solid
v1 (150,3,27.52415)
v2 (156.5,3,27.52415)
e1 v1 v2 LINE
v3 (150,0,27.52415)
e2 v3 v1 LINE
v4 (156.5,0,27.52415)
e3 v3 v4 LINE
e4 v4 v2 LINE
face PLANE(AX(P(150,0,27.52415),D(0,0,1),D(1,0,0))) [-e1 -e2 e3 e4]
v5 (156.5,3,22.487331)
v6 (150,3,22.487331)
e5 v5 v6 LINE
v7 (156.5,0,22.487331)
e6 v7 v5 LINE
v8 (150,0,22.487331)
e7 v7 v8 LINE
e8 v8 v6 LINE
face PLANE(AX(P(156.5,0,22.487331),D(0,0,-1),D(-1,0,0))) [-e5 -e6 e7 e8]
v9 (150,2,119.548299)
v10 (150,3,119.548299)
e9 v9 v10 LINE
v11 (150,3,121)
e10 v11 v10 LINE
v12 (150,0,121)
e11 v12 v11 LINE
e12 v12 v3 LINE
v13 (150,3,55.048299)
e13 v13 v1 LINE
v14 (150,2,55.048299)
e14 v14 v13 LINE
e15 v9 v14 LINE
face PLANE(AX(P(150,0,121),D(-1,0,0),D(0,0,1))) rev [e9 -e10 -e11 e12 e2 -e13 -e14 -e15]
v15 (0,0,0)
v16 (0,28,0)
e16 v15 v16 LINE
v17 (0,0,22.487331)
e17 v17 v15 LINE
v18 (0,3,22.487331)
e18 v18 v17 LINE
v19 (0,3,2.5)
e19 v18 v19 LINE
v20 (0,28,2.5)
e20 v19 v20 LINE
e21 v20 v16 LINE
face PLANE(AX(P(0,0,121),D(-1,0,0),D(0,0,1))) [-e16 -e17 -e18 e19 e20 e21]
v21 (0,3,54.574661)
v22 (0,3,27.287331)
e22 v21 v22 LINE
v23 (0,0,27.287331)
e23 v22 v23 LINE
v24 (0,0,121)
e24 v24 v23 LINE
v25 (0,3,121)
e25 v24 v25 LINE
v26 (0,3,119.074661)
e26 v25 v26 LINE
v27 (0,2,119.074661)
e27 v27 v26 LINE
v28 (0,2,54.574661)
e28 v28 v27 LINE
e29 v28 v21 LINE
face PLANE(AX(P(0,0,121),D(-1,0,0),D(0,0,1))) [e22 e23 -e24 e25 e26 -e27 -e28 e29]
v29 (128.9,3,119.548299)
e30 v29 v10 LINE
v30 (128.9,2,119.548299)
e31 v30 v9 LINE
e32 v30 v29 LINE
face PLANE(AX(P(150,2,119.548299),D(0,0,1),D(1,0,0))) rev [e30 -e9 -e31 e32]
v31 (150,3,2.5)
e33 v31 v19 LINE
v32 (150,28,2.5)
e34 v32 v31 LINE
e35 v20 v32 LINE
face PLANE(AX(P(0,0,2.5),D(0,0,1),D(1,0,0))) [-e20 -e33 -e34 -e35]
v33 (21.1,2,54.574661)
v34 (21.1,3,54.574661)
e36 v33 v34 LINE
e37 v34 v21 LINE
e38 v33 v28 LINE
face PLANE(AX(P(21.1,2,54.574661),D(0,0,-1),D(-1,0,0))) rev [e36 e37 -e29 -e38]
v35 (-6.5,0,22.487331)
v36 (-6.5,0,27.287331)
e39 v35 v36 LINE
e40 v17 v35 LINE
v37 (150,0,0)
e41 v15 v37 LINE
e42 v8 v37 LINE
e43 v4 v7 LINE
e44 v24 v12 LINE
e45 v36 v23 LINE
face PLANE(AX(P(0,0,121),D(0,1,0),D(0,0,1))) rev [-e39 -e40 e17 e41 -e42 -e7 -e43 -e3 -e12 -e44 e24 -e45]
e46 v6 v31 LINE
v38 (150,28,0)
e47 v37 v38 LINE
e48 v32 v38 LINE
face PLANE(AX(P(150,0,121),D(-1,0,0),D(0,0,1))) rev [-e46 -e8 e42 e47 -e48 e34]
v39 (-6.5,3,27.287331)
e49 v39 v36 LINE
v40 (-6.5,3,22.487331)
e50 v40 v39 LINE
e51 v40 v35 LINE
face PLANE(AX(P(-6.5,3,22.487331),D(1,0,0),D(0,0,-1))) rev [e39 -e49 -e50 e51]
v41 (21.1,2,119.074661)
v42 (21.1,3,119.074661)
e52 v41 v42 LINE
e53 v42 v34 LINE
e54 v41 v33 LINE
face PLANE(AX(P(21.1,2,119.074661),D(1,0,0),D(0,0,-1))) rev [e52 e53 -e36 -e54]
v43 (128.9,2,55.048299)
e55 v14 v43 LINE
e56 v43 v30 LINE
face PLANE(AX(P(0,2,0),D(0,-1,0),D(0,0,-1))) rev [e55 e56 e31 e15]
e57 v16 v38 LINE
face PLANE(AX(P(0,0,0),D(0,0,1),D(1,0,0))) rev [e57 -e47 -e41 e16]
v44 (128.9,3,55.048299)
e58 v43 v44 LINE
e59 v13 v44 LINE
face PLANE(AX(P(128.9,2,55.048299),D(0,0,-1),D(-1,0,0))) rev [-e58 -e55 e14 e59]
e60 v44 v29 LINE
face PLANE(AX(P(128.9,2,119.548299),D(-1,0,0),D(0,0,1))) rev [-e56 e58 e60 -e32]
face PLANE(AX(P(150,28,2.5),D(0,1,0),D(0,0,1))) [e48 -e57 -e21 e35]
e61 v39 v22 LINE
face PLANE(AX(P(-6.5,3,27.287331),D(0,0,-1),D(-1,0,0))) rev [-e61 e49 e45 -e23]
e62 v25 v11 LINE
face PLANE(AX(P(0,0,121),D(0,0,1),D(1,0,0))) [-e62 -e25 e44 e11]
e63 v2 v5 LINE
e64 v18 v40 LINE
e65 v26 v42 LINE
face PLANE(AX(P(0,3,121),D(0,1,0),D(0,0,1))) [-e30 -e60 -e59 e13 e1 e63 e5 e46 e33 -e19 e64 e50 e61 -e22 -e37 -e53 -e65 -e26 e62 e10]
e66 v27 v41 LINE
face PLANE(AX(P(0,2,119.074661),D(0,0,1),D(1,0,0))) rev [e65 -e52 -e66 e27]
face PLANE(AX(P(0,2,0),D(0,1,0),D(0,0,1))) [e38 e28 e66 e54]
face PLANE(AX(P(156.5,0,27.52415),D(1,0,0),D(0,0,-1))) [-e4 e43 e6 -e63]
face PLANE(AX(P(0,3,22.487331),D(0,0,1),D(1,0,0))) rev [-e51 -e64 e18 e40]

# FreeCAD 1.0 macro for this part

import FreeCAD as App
import Part
import Sketcher

V = App.Vector
Q = App.Units.Quantity


def add_polygon(sketch, points):
    """Adds a closed chain of lines whose ends are joined by coincident constraints."""
    first, n = sketch.GeometryCount, len(points)
    for a, b in zip(points, points[1:] + points[:1]):
        sketch.addGeometry(Part.LineSegment(App.Vector(*a, 0), App.Vector(*b, 0)), False)
    for i in range(n):
        sketch.addConstraint(Sketcher.Constraint("Coincident", first + i, 2, first + (i + 1) % n, 1))

doc = App.newDocument("Part")
params = doc.addObject("Spreadsheet::Sheet", "Params")
for row, (alias, value) in enumerate([
    ("sketch1_width", "150 mm"),
    ("sketch1_height", "3 mm"),
    ("pad1_length", "121 mm"),
    ("sketch2_width", "21.1 mm"),
    ("sketch2_height", "64.5 mm"),
    ("pocket1_length", "1 mm"),
    ("sketch3_width", "21.1 mm"),
    ("sketch3_height", "64.5 mm"),
    ("pocket2_length", "1 mm"),
    ("sketch4_width", "6.5 mm"),
    ("sketch4_height", "4.8 mm"),
    ("pad2_length", "3 mm"),
    ("sketch5_width", "6.5 mm"),
    ("pad3_length", "3 mm"),
    ("sketch6_width", "150 mm"),
    ("sketch6_height", "25 mm"),
    ("pad4_length", "2.5 mm"),
], start=1):
    params.set(f"A{row}", alias)
    params.set(f"B{row}", "=" + value)
    params.setAlias(f"B{row}", alias)

body = doc.addObject("PartDesign::Body", "Body")

# Sketch on XY plane
sketch1 = body.newObject("Sketcher::SketchObject", "Sketch")
sketch1.AttachmentSupport = (doc.getObject("XY_Plane"), [""])
sketch1.MapMode = "FlatFace"
add_polygon(sketch1, [(0, 3), (0, 0), (150, 0), (150, 3)])  # lines 0-3
sketch1.addConstraint(Sketcher.Constraint("Vertical", 0))
sketch1.addConstraint(Sketcher.Constraint("Horizontal", 1))
sketch1.addConstraint(Sketcher.Constraint("Vertical", 2))
sketch1.addConstraint(Sketcher.Constraint("Horizontal", 3))
sketch1.addConstraint(Sketcher.Constraint("Coincident", 0, 2, -1, 1))
sketch1.addConstraint(Sketcher.Constraint("DistanceX", 1, 1, 1, 2, Q("150 mm")))
sketch1.addConstraint(Sketcher.Constraint("DistanceY", 0, 2, 0, 1, Q("3 mm")))
sketch1.setExpression("Constraints[9]", "Params.sketch1_width")
sketch1.setExpression("Constraints[10]", "Params.sketch1_height")
pad1 = body.newObject("PartDesign::Pad", "Pad")
pad1.Profile = sketch1
pad1.setExpression("Length", "Params.pad1_length")

# Sketch on XZ plane
sketch2 = body.newObject("Sketcher::SketchObject", "Sketch001")
sketch2.AttachmentSupport = (doc.getObject("XZ_Plane"), [""])
sketch2.MapMode = "FlatFace"
sketch2.AttachmentOffset = App.Placement(V(0, 0, -3), App.Rotation())
add_polygon(sketch2, [(0, 54.574661), (0, 119.074661), (21.1, 119.074661), (21.1, 54.574661)])  # lines 0-3
sketch2.addConstraint(Sketcher.Constraint("Vertical", 0))
sketch2.addConstraint(Sketcher.Constraint("Horizontal", 1))
sketch2.addConstraint(Sketcher.Constraint("Vertical", 2))
sketch2.addConstraint(Sketcher.Constraint("Horizontal", 3))
sketch2.addConstraint(Sketcher.Constraint("PointOnObject", 0, 2, -2))
sketch2.addConstraint(Sketcher.Constraint("DistanceX", 1, 1, 1, 2, Q("21.1 mm")))
sketch2.addConstraint(Sketcher.Constraint("DistanceY", 0, 1, 0, 2, Q("64.5 mm")))
sketch2.addConstraint(Sketcher.Constraint("DistanceY", -1, 1, 0, 2, Q("119.074661 mm")))
sketch2.setExpression("Constraints[9]", "Params.sketch2_width")
sketch2.setExpression("Constraints[10]", "Params.sketch2_height")
pocket1 = body.newObject("PartDesign::Pocket", "Pocket")
pocket1.Profile = sketch2
pocket1.setExpression("Length", "Params.pocket1_length")
pocket1.Reversed = True

# Sketch on XZ plane
sketch3 = body.newObject("Sketcher::SketchObject", "Sketch002")
sketch3.AttachmentSupport = (doc.getObject("XZ_Plane"), [""])
sketch3.MapMode = "FlatFace"
sketch3.AttachmentOffset = App.Placement(V(0, 0, -3), App.Rotation())
add_polygon(sketch3, [(128.9, 55.048299), (128.9, 119.548299), (150, 119.548299), (150, 55.048299)])  # lines 0-3
sketch3.addConstraint(Sketcher.Constraint("Vertical", 0))
sketch3.addConstraint(Sketcher.Constraint("Horizontal", 1))
sketch3.addConstraint(Sketcher.Constraint("Vertical", 2))
sketch3.addConstraint(Sketcher.Constraint("Horizontal", 3))
sketch3.addConstraint(Sketcher.Constraint("DistanceX", 1, 1, 1, 2, Q("21.1 mm")))
sketch3.addConstraint(Sketcher.Constraint("DistanceY", 0, 1, 0, 2, Q("64.5 mm")))
sketch3.addConstraint(Sketcher.Constraint("DistanceX", -1, 1, 1, 2, Q("150 mm")))
sketch3.addConstraint(Sketcher.Constraint("DistanceY", -1, 1, 0, 2, Q("119.548299 mm")))
sketch3.setExpression("Constraints[8]", "Params.sketch3_width")
sketch3.setExpression("Constraints[9]", "Params.sketch3_height")
pocket2 = body.newObject("PartDesign::Pocket", "Pocket001")
pocket2.Profile = sketch3
pocket2.setExpression("Length", "Params.pocket2_length")
pocket2.Reversed = True

# Sketch on XZ plane
sketch4 = body.newObject("Sketcher::SketchObject", "Sketch003")
sketch4.AttachmentSupport = (doc.getObject("XZ_Plane"), [""])
sketch4.MapMode = "FlatFace"
add_polygon(sketch4, [(-6.5, 22.487331), (-6.5, 27.287331), (0, 27.287331), (0, 22.487331)])  # lines 0-3
sketch4.addConstraint(Sketcher.Constraint("Vertical", 0))
sketch4.addConstraint(Sketcher.Constraint("Horizontal", 1))
sketch4.addConstraint(Sketcher.Constraint("Vertical", 2))
sketch4.addConstraint(Sketcher.Constraint("Horizontal", 3))
sketch4.addConstraint(Sketcher.Constraint("PointOnObject", 1, 2, -2))
sketch4.addConstraint(Sketcher.Constraint("DistanceX", 1, 1, 1, 2, Q("6.5 mm")))
sketch4.addConstraint(Sketcher.Constraint("DistanceY", 0, 1, 0, 2, Q("4.8 mm")))
sketch4.addConstraint(Sketcher.Constraint("DistanceY", -1, 1, 0, 2, Q("27.287331 mm")))
sketch4.setExpression("Constraints[9]", "Params.sketch4_width")
sketch4.setExpression("Constraints[10]", "Params.sketch4_height")
pad2 = body.newObject("PartDesign::Pad", "Pad001")
pad2.Profile = sketch4
pad2.setExpression("Length", "Params.pad2_length")
pad2.Reversed = True

# Sketch on XZ plane
sketch5 = body.newObject("Sketcher::SketchObject", "Sketch004")
sketch5.AttachmentSupport = (doc.getObject("XZ_Plane"), [""])
sketch5.MapMode = "FlatFace"
sketch5.AttachmentOffset = App.Placement(V(0, 0, -3), App.Rotation())
add_polygon(sketch5, [(150, 22.487331), (150, 27.52415), (156.5, 27.52415), (156.5, 22.487331)])  # lines 0-3
sketch5.addConstraint(Sketcher.Constraint("Vertical", 0))
sketch5.addConstraint(Sketcher.Constraint("Horizontal", 1))
sketch5.addConstraint(Sketcher.Constraint("Vertical", 2))
sketch5.addConstraint(Sketcher.Constraint("Horizontal", 3))
sketch5.addConstraint(Sketcher.Constraint("DistanceX", 1, 1, 1, 2, Q("6.5 mm")))
sketch5.addConstraint(Sketcher.Constraint("DistanceX", -1, 1, 0, 2, Q("150 mm")))
sketch5.addConstraint(Sketcher.Constraint("DistanceY", 0, 1, 0, 2, Q("5.036819 mm")))
sketch5.addConstraint(Sketcher.Constraint("DistanceY", -1, 1, 0, 2, Q("27.52415 mm")))
sketch5.setExpression("Constraints[8]", "Params.sketch5_width")
pad3 = body.newObject("PartDesign::Pad", "Pad002")
pad3.Profile = sketch5
pad3.setExpression("Length", "Params.pad3_length")

# Sketch on XY plane
sketch6 = body.newObject("Sketcher::SketchObject", "Sketch005")
sketch6.AttachmentSupport = (doc.getObject("XY_Plane"), [""])
sketch6.MapMode = "FlatFace"
add_polygon(sketch6, [(150, 28), (150, 3), (0, 3), (0, 28)])  # lines 0-3
sketch6.addConstraint(Sketcher.Constraint("Vertical", 0))
sketch6.addConstraint(Sketcher.Constraint("Horizontal", 1))
sketch6.addConstraint(Sketcher.Constraint("Vertical", 2))
sketch6.addConstraint(Sketcher.Constraint("Horizontal", 3))
sketch6.addConstraint(Sketcher.Constraint("PointOnObject", 1, 2, -2))
sketch6.addConstraint(Sketcher.Constraint("DistanceX", 1, 2, 1, 1, Q("150 mm")))
sketch6.addConstraint(Sketcher.Constraint("DistanceY", 0, 2, 0, 1, Q("25 mm")))
sketch6.addConstraint(Sketcher.Constraint("DistanceY", -1, 1, 0, 2, Q("3 mm")))
sketch6.setExpression("Constraints[9]", "Params.sketch6_width")
sketch6.setExpression("Constraints[10]", "Params.sketch6_height")
pad4 = body.newObject("PartDesign::Pad", "Pad003")
pad4.Profile = sketch6
pad4.setExpression("Length", "Params.pad4_length")

doc.recompute()
